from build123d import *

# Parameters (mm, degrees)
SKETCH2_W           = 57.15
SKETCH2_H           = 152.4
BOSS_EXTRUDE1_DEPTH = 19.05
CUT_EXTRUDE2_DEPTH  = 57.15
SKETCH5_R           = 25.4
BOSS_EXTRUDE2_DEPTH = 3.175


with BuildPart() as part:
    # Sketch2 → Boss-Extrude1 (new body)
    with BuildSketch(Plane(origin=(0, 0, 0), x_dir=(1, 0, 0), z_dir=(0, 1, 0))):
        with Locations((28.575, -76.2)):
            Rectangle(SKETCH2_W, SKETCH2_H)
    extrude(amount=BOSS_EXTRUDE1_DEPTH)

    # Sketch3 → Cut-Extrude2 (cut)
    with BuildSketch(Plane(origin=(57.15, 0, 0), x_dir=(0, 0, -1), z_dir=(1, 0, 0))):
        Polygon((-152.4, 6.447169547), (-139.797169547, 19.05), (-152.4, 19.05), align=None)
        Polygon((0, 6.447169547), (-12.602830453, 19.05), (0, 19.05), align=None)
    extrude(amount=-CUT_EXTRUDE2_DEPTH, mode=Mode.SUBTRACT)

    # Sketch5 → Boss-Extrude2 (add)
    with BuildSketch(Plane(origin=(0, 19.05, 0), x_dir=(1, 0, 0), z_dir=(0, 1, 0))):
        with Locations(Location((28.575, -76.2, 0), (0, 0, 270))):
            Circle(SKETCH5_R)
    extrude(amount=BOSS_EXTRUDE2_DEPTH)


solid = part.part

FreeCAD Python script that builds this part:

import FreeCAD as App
import Part
import Sketcher

V = App.Vector
Q = App.Units.Quantity


def add_polygon(sketch, points):
    """Adds a closed chain of lines whose ends are joined by coincident constraints."""
    first, n = sketch.GeometryCount, len(points)
    for a, b in zip(points, points[1:] + points[:1]):
        sketch.addGeometry(Part.LineSegment(App.Vector(*a, 0), App.Vector(*b, 0)), False)
    for i in range(n):
        sketch.addConstraint(Sketcher.Constraint("Coincident", first + i, 2, first + (i + 1) % n, 1))

doc = App.newDocument("Part")
body = doc.addObject("PartDesign::Body", "Body")

sketch1 = doc.addObject("Sketcher::SketchObject", "Sketch")
body.addObject(sketch1)
sketch1.AttachmentSupport = (doc.XZ_Plane, [""])
sketch1.MapMode = "FlatFace"
add_polygon(sketch1, [(0, 0), (0, 152), (57, 152), (57, 0)])
sketch1.addConstraint([
    Sketcher.Constraint("Vertical", 0),
    Sketcher.Constraint("Horizontal", 1),
    Sketcher.Constraint("Vertical", 2),
    Sketcher.Constraint("Horizontal", 3),
    Sketcher.Constraint("Coincident", 3, 2, -1, 1),
    Sketcher.Constraint("DistanceY", 0, 1, 0, 2, Q("6 in")),
    Sketcher.Constraint("DistanceX", 1, 1, 1, 2, Q("2.25 in")),
])
pad1 = doc.addObject("PartDesign::Pad", "Pad")
body.addObject(pad1)
pad1.Profile = sketch1
pad1.Length = Q("0.75 in")
pad1.Reversed = True

sketch2 = doc.addObject("Sketcher::SketchObject", "Sketch001")
body.addObject(sketch2)
sketch2.AttachmentSupport = (doc.YZ_Plane, [""])
sketch2.MapMode = "FlatFace"
sketch2.AttachmentOffset = App.Placement(V(0, 0, 2.25 * 25.4), App.Rotation())
add_polygon(sketch2, [(6, 152), (19, 140), (19, 152)])
add_polygon(sketch2, [(19, 13), (6, 0), (19, 0)])
sketch2.addConstraint([
    Sketcher.Constraint("Vertical", 1),
    Sketcher.Constraint("Horizontal", 2),
    Sketcher.Constraint("Horizontal", 4),
    Sketcher.Constraint("Vertical", 5),
    Sketcher.Constraint("PointOnObject", 3, 2, -1),
    Sketcher.Constraint("Perpendicular", 0, 3),
    Sketcher.Constraint("Vertical", 2, 2, 3, 2),
    Sketcher.Constraint("Vertical", 1, 2, 4, 2),
    Sketcher.Constraint("Equal", 4, 1),
    Sketcher.Constraint("DistanceY", -1, 1, 1, 2, Q("6 in")),
    Sketcher.Constraint("DistanceX", -1, 1, 0, 2, Q("0.75 in")),
    Sketcher.Constraint("DistanceX", 2, 2, 2, 1, Q("12.60283 mm")),
])
pocket1 = doc.addObject("PartDesign::Pocket", "Pocket")
body.addObject(pocket1)
pocket1.Profile = sketch2
pocket1.Length = Q("2.25 in")

sketch3 = doc.addObject("Sketcher::SketchObject", "Sketch002")
body.addObject(sketch3)
sketch3.AttachmentSupport = (doc.XZ_Plane, [""])
sketch3.MapMode = "FlatFace"
sketch3.AttachmentOffset = App.Placement(V(0, 0, -0.75 * 25.4), App.Rotation())
sketch3.addGeometry(Part.Circle(V(29, 76, 0), V(0, 0, 1), 25), False)
sketch3.addConstraint([
    Sketcher.Constraint("Diameter", 0, Q("2 in")),
    Sketcher.Constraint("DistanceY", -1, 1, 0, 3, Q("3 in")),
    Sketcher.Constraint("DistanceX", -1, 1, 0, 3, Q("1.125 in")),
])
pad2 = doc.addObject("PartDesign::Pad", "Pad001")
body.addObject(pad2)
pad2.Profile = sketch3
pad2.Length = Q("0.125 in")
pad2.Reversed = True

doc.recompute()
